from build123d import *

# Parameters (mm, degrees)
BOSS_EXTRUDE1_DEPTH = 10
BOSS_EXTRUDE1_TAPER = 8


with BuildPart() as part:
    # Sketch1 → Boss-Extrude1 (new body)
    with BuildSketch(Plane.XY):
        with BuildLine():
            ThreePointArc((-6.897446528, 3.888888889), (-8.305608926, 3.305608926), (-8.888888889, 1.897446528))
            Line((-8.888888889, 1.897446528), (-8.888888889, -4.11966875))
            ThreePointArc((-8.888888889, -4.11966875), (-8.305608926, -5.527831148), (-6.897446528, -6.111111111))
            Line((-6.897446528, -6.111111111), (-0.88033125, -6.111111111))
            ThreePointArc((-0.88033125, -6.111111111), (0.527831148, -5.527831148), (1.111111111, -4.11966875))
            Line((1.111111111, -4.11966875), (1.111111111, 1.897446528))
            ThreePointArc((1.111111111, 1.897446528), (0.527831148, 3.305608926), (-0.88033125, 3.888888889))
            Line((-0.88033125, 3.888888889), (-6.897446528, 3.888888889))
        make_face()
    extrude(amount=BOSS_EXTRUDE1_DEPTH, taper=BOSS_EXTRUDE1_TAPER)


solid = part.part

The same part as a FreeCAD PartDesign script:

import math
import FreeCAD as App
import Part
import Sketcher
from FreeCAD import Vector
Q = App.Units.Quantity

doc = App.newDocument("Part")
body = doc.addObject("PartDesign::Body", "Body")

# Sketch on XY plane
sketch1 = doc.addObject("Sketcher::SketchObject", "Sketch")
body.addObject(sketch1)
sketch1.AttachmentSupport = (doc.XY_Plane, [""])
sketch1.MapMode = "FlatFace"
sketch1.addGeometry(Part.ArcOfCircle(Part.Circle(Vector(-6.9, 1.9, 0), Vector(0, 0, 1), 2), math.radians(90), math.radians(180)), False)
sketch1.addGeometry(Part.LineSegment(Vector(-8.9, 1.9, 0), Vector(-8.9, -4.1, 0)), False)
sketch1.addGeometry(Part.ArcOfCircle(Part.Circle(Vector(-6.9, -4.1, 0), Vector(0, 0, 1), 2), math.radians(180), math.radians(270)), False)
sketch1.addGeometry(Part.LineSegment(Vector(-6.9, -6.1, 0), Vector(-0.9, -6.1, 0)), False)
sketch1.addGeometry(Part.ArcOfCircle(Part.Circle(Vector(-0.9, -4.1, 0), Vector(0, 0, 1), 2), math.radians(-90), math.radians(0)), False)
sketch1.addGeometry(Part.LineSegment(Vector(1.1, -4.1, 0), Vector(1.1, 1.9, 0)), False)
sketch1.addGeometry(Part.ArcOfCircle(Part.Circle(Vector(-0.9, 1.9, 0), Vector(0, 0, 1), 2), math.radians(0), math.radians(90)), False)
sketch1.addGeometry(Part.LineSegment(Vector(-0.9, 3.9, 0), Vector(-6.9, 3.9, 0)), False)
sketch1.addConstraint(Sketcher.Constraint("Tangent", 0, 2, 1, 1))
sketch1.addConstraint(Sketcher.Constraint("Tangent", 1, 2, 2, 1))
sketch1.addConstraint(Sketcher.Constraint("Tangent", 2, 2, 3, 1))
sketch1.addConstraint(Sketcher.Constraint("Tangent", 3, 2, 4, 1))
sketch1.addConstraint(Sketcher.Constraint("Tangent", 4, 2, 5, 1))
sketch1.addConstraint(Sketcher.Constraint("Tangent", 5, 2, 6, 1))
sketch1.addConstraint(Sketcher.Constraint("Tangent", 6, 2, 7, 1))
sketch1.addConstraint(Sketcher.Constraint("Tangent", 7, 2, 0, 1))
sketch1.addConstraint(Sketcher.Constraint("Vertical", 1))
sketch1.addConstraint(Sketcher.Constraint("Horizontal", 3))
sketch1.addConstraint(Sketcher.Constraint("Vertical", 5))
sketch1.addConstraint(Sketcher.Constraint("Horizontal", 7))
sketch1.addConstraint(Sketcher.Constraint("Equal", 0, 2))
sketch1.addConstraint(Sketcher.Constraint("Equal", 2, 4))
sketch1.addConstraint(Sketcher.Constraint("Equal", 4, 6))
sketch1.addConstraint(Sketcher.Constraint("Equal", 7, 1))
sketch1.addConstraint(Sketcher.Constraint("Radius", 0, Q("1.991442 mm")))
sketch1.addConstraint(Sketcher.Constraint("DistanceX", 3, 1, 3, 2, Q("6.017115 mm")))
sketch1.addConstraint(Sketcher.Constraint("DistanceY", 2, 3, -1, 1, Q("4.119669 mm")))
sketch1.addConstraint(Sketcher.Constraint("DistanceX", 4, 3, -1, 1, Q("0.880331 mm")))
pad1 = doc.addObject("PartDesign::Pad", "Pad")
body.addObject(pad1)
pad1.Profile = sketch1
pad1.Length = 10
pad1.TaperAngle = -8

doc.recompute()
